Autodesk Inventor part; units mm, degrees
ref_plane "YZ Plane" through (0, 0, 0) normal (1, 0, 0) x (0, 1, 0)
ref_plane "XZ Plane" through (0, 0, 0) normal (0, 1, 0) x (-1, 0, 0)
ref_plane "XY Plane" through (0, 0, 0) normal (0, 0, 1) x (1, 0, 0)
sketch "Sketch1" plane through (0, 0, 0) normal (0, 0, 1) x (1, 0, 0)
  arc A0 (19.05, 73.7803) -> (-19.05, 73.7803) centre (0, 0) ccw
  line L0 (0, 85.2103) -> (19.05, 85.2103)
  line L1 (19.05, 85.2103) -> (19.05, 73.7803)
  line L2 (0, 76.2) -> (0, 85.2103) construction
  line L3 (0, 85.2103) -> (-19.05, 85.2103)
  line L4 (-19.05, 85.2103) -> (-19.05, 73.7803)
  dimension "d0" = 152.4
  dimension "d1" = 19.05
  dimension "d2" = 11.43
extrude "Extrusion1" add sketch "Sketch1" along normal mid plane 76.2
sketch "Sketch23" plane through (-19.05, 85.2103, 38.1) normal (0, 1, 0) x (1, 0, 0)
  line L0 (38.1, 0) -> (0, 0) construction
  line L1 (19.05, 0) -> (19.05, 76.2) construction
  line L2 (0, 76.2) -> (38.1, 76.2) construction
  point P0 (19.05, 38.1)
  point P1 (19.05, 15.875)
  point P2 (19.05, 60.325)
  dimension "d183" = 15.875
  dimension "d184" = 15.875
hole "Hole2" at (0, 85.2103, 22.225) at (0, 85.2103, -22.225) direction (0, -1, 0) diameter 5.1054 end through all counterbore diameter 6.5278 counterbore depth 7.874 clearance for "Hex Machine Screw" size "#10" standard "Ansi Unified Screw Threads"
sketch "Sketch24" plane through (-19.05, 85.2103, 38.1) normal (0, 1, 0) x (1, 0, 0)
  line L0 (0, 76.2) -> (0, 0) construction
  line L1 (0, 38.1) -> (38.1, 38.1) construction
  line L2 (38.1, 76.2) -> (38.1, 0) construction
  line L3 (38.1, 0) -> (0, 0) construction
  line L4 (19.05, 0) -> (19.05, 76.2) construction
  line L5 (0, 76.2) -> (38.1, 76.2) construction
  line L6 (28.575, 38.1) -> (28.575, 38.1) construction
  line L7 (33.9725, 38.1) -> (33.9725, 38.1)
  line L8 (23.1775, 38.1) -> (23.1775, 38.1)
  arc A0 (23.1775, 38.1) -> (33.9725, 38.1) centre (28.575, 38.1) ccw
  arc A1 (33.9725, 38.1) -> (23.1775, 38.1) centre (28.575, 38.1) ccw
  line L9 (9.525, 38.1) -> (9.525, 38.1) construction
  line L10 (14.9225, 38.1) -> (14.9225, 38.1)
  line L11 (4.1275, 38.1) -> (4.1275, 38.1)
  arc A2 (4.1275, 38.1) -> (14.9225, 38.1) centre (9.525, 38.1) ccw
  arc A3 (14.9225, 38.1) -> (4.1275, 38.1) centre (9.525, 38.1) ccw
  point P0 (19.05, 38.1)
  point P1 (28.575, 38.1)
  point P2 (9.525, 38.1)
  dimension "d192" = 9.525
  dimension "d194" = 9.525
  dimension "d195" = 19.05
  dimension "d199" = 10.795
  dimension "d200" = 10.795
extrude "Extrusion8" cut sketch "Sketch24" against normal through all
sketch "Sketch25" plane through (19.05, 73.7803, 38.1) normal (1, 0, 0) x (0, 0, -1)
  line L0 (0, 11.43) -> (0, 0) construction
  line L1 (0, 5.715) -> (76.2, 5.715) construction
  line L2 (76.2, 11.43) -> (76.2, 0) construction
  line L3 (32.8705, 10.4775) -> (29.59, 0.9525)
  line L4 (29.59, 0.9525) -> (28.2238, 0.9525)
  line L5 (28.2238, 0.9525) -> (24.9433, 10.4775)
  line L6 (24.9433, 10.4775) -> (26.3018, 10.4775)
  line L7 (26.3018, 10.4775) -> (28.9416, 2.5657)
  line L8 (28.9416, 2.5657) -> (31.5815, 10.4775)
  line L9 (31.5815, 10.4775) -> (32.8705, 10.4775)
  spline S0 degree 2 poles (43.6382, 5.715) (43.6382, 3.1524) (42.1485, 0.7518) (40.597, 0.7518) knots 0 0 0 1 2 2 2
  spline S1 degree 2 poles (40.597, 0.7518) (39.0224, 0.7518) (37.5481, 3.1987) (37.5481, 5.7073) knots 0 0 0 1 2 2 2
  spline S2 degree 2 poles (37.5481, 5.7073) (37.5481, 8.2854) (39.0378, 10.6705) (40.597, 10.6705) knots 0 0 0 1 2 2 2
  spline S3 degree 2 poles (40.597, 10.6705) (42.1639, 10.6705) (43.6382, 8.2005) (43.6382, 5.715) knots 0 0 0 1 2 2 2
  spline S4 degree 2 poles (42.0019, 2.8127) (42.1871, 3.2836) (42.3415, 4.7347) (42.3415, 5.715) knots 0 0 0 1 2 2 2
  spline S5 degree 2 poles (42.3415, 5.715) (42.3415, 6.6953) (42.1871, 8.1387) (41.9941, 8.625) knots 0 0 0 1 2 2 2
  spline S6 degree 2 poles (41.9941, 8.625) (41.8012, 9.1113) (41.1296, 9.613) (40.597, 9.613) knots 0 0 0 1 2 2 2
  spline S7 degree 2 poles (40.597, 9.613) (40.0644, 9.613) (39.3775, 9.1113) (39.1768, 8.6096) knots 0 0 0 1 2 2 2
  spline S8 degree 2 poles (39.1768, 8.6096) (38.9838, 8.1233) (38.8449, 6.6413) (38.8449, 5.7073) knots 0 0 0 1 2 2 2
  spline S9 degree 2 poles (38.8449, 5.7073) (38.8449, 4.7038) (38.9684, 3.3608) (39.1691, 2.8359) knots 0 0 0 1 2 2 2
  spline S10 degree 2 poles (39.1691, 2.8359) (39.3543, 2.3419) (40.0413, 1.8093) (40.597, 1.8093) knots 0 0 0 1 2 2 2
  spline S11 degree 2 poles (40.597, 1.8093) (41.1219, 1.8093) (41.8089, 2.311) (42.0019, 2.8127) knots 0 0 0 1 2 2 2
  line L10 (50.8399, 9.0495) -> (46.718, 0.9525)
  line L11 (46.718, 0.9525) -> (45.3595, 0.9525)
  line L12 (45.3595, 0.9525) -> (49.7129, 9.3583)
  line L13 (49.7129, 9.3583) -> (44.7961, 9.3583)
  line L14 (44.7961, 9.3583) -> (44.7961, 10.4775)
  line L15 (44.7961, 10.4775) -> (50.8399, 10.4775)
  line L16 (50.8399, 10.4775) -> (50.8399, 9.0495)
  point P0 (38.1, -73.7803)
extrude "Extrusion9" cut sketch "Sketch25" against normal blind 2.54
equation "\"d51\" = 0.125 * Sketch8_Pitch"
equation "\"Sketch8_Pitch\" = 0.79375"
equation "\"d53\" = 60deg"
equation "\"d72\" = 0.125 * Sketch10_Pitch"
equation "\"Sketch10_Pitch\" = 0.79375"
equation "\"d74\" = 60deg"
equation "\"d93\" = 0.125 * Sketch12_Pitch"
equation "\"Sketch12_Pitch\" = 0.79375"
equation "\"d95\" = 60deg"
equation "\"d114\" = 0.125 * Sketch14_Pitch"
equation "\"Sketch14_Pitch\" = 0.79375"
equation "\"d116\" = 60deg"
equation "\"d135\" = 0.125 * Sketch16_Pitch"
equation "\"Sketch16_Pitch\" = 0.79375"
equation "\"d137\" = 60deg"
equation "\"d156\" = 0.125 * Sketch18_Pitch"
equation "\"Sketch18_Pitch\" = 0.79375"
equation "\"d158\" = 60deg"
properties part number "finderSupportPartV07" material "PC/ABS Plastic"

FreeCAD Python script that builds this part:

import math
import FreeCAD as App
import Part
import Sketcher
Q = App.Units.Quantity

doc = App.newDocument("Part")
body = doc.addObject("PartDesign::Body", "Body")

# Sketch on XY plane
sketch1 = body.newObject("Sketcher::SketchObject", "Sketch")
sketch1.AttachmentSupport = (doc.getObject("XY_Plane"), [""])
sketch1.MapMode = "FlatFace"
sketch1.addGeometry([
    Part.ArcOfCircle(Part.Circle(App.Vector(0, 0, 0), App.Vector(0, 0, 1), 76), math.radians(76), math.radians(104)),
    Part.LineSegment(App.Vector(19, 74, 0), App.Vector(19, 85, 0)),
    Part.LineSegment(App.Vector(19, 85, 0), App.Vector(-19, 85, 0)),
    Part.LineSegment(App.Vector(-19, 85, 0), App.Vector(-19, 74, 0)),
], False)
sketch1.addConstraint([
    Sketcher.Constraint("Coincident", 0, 1, 1, 1),
    Sketcher.Constraint("Coincident", 1, 2, 2, 1),
    Sketcher.Constraint("Coincident", 2, 2, 3, 1),
    Sketcher.Constraint("Coincident", 3, 2, 0, 2),
    Sketcher.Constraint("Vertical", 1),
    Sketcher.Constraint("Horizontal", 2),
    Sketcher.Constraint("Vertical", 3),
    Sketcher.Constraint("Coincident", 0, 3, -1, 1),
    Sketcher.Constraint("Horizontal", 0, 1, 3, 2),
    Sketcher.Constraint("Radius", 0, Q("3 in")),
    Sketcher.Constraint("DistanceY", 1, 1, 1, 2, Q("0.45 in")),
    Sketcher.Constraint("DistanceX", -1, 1, 0, 1, Q("0.75 in")),
])
pad1 = body.newObject("PartDesign::Pad", "Pad")
pad1.Profile = sketch1
pad1.Length = Q("3 in")
pad1.Midplane = True

# Sketch on XZ plane
sketch2 = body.newObject("Sketcher::SketchObject", "Sketch001")
sketch2.AttachmentSupport = (doc.getObject("XZ_Plane"), [""])
sketch2.MapMode = "FlatFace"
sketch2.AttachmentOffset = App.Placement(App.Vector(0, 0, -85.2103), App.Rotation())
sketch2.addGeometry([
    Part.Circle(App.Vector(0, 22.2, 0), App.Vector(0, 0, 1), 2.6),
    Part.Circle(App.Vector(0, -22.2, 0), App.Vector(0, 0, 1), 2.6),
], False)
sketch2.addConstraint([
    Sketcher.Constraint("Equal", 0, 1),
    Sketcher.Constraint("Symmetric", 0, 3, 1, 3, -1, 1),
    Sketcher.Constraint("PointOnObject", 0, 3, -2),
    Sketcher.Constraint("Diameter", 0, Q("0.201 in")),
    Sketcher.Constraint("DistanceY", 1, 3, 0, 3, Q("1.75 in")),
])
doc.recompute()
hole = body.newObject("PartDesign::Hole", "Hole")
hole.Profile = sketch2
hole.ThreadType = "None"
hole.Diameter = Q("0.201 in")
hole.DepthType = "ThroughAll"
hole.HoleCutType = "Counterbore"
hole.HoleCutDiameter = Q("0.257 in")
hole.HoleCutDepth = Q("0.31 in")
hole.Reversed = True

# Sketch on XZ plane
sketch3 = body.newObject("Sketcher::SketchObject", "Sketch002")
sketch3.AttachmentSupport = (doc.getObject("XZ_Plane"), [""])
sketch3.MapMode = "FlatFace"
sketch3.AttachmentOffset = App.Placement(App.Vector(0, 0, -85.2103), App.Rotation())
sketch3.addGeometry([
    Part.Circle(App.Vector(10, 0, 0), App.Vector(0, 0, 1), 5),
    Part.Circle(App.Vector(-10, 0, 0), App.Vector(0, 0, 1), 5),
], False)
sketch3.addConstraint([
    Sketcher.Constraint("Equal", 0, 1),
    Sketcher.Constraint("Symmetric", 0, 3, 1, 3, -1, 1),
    Sketcher.Constraint("PointOnObject", 0, 3, -1),
    Sketcher.Constraint("Diameter", 0, Q("0.425 in")),
    Sketcher.Constraint("DistanceX", 1, 3, 0, 3, Q("0.75 in")),
])
pocket1 = body.newObject("PartDesign::Pocket", "Pocket")
pocket1.Profile = sketch3
pocket1.Type = "ThroughAll"
pocket1.Reversed = True

# Sketch on YZ plane
sketch4 = body.newObject("Sketcher::SketchObject", "Sketch003")
sketch4.AttachmentSupport = (doc.getObject("YZ_Plane"), [""])
sketch4.MapMode = "FlatFace"
sketch4.AttachmentOffset = App.Placement(App.Vector(0, 0, 0.75 * 25.4), App.Rotation())
sketch4.addGeometry([
    Part.LineSegment(App.Vector(74.7328, 8.51, 0), App.Vector(84.2578, 5.2295, 0)),  # 0
    Part.LineSegment(App.Vector(84.2578, 5.2295, 0), App.Vector(84.2578, 6.5185, 0)),  # 1
    Part.LineSegment(App.Vector(84.2578, 6.5185, 0), App.Vector(76.346, 9.1584, 0)),  # 2
    Part.LineSegment(App.Vector(76.346, 9.1584, 0), App.Vector(84.2578, 11.7982, 0)),  # 3
    Part.LineSegment(App.Vector(84.2578, 11.7982, 0), App.Vector(84.2578, 13.1567, 0)),  # 4
    Part.LineSegment(App.Vector(84.2578, 13.1567, 0), App.Vector(74.7328, 9.8762, 0)),  # 5
    Part.LineSegment(App.Vector(74.7328, 9.8762, 0), App.Vector(74.7328, 8.51, 0)),  # 6
    Part.BSplineCurve([App.Vector(79.4953, -5.5382, 0), App.Vector(76.9327, -5.5382, 0), App.Vector(74.5321, -4.0485, 0), App.Vector(74.5321, -2.497, 0)], [3, 1, 3], [0, 1, 2], False, 2, [1, 1, 1, 1], False),  # 7
    Part.BSplineCurve([App.Vector(84.4508, -2.497, 0), App.Vector(84.4508, -4.0639, 0), App.Vector(81.9808, -5.5382, 0), App.Vector(79.4953, -5.5382, 0)], [3, 1, 3], [0, 1, 2], False, 2, [1, 1, 1, 1], False),  # 8
    Part.BSplineCurve([App.Vector(79.4876, 0.5519, 0), App.Vector(82.0657, 0.5519, 0), App.Vector(84.4508, -0.9378, 0), App.Vector(84.4508, -2.497, 0)], [3, 1, 3], [0, 1, 2], False, 2, [1, 1, 1, 1], False),  # 9
    Part.BSplineCurve([App.Vector(74.5321, -2.497, 0), App.Vector(74.5321, -0.9224, 0), App.Vector(76.979, 0.5519, 0), App.Vector(79.4876, 0.5519, 0)], [3, 1, 3], [0, 1, 2], False, 2, [1, 1, 1, 1], False),  # 10
    Part.BSplineCurve([App.Vector(76.593, -3.9019, 0), App.Vector(77.0639, -4.0871, 0), App.Vector(78.515, -4.2415, 0), App.Vector(79.4953, -4.2415, 0)], [3, 1, 3], [0, 1, 2], False, 2, [1, 1, 1, 1], False),  # 11
    Part.BSplineCurve([App.Vector(75.5896, -2.497, 0), App.Vector(75.5896, -3.0219, 0), App.Vector(76.0913, -3.7089, 0), App.Vector(76.593, -3.9019, 0)], [3, 1, 3], [0, 1, 2], False, 2, [1, 1, 1, 1], False),  # 12
    Part.BSplineCurve([App.Vector(76.6162, -1.0691, 0), App.Vector(76.1222, -1.2543, 0), App.Vector(75.5896, -1.9413, 0), App.Vector(75.5896, -2.497, 0)], [3, 1, 3], [0, 1, 2], False, 2, [1, 1, 1, 1], False),  # 13
    Part.BSplineCurve([App.Vector(79.4876, -0.7449, 0), App.Vector(78.4841, -0.7449, 0), App.Vector(77.1411, -0.8684, 0), App.Vector(76.6162, -1.0691, 0)], [3, 1, 3], [0, 1, 2], False, 2, [1, 1, 1, 1], False),  # 14
    Part.BSplineCurve([App.Vector(82.3899, -1.0768, 0), App.Vector(81.9036, -0.8838, 0), App.Vector(80.4216, -0.7449, 0), App.Vector(79.4876, -0.7449, 0)], [3, 1, 3], [0, 1, 2], False, 2, [1, 1, 1, 1], False),  # 15
    Part.BSplineCurve([App.Vector(83.3933, -2.497, 0), App.Vector(83.3933, -1.9644, 0), App.Vector(82.8916, -1.2775, 0), App.Vector(82.3899, -1.0768, 0)], [3, 1, 3], [0, 1, 2], False, 2, [1, 1, 1, 1], False),  # 16
    Part.BSplineCurve([App.Vector(82.4053, -3.8941, 0), App.Vector(82.8916, -3.7012, 0), App.Vector(83.3933, -3.0296, 0), App.Vector(83.3933, -2.497, 0)], [3, 1, 3], [0, 1, 2], False, 2, [1, 1, 1, 1], False),  # 17
    Part.BSplineCurve([App.Vector(79.4953, -4.2415, 0), App.Vector(80.4756, -4.2415, 0), App.Vector(81.919, -4.0871, 0), App.Vector(82.4053, -3.8941, 0)], [3, 1, 3], [0, 1, 2], False, 2, [1, 1, 1, 1], False),  # 18
    Part.LineSegment(App.Vector(74.7328, -8.618, 0), App.Vector(82.8298, -12.7399, 0)),  # 19
    Part.LineSegment(App.Vector(82.8298, -12.7399, 0), App.Vector(84.2578, -12.7399, 0)),  # 20
    Part.LineSegment(App.Vector(84.2578, -12.7399, 0), App.Vector(84.2578, -6.6961, 0)),  # 21
    Part.LineSegment(App.Vector(84.2578, -6.6961, 0), App.Vector(83.1386, -6.6961, 0)),  # 22
    Part.LineSegment(App.Vector(83.1386, -6.6961, 0), App.Vector(83.1386, -11.6129, 0)),  # 23
    Part.LineSegment(App.Vector(83.1386, -11.6129, 0), App.Vector(74.7328, -7.2595, 0)),  # 24
    Part.LineSegment(App.Vector(74.7328, -7.2595, 0), App.Vector(74.7328, -8.618, 0)),  # 25
], False)
sketch4.addConstraint([
    Sketcher.Constraint("Block", 7),
    Sketcher.Constraint("Block", 8),
    Sketcher.Constraint("Block", 9),
    Sketcher.Constraint("Block", 10),
    Sketcher.Constraint("Block", 11),
    Sketcher.Constraint("Block", 12),
    Sketcher.Constraint("Block", 13),
    Sketcher.Constraint("Block", 14),
    Sketcher.Constraint("Block", 15),
    Sketcher.Constraint("Block", 16),
    Sketcher.Constraint("Block", 17),
    Sketcher.Constraint("Block", 18),
    Sketcher.Constraint("Coincident", 0, 2, 1, 1),
    Sketcher.Constraint("Coincident", 1, 2, 2, 1),
    Sketcher.Constraint("Coincident", 2, 2, 3, 1),
    Sketcher.Constraint("Coincident", 3, 2, 4, 1),
    Sketcher.Constraint("Coincident", 4, 2, 5, 1),
    Sketcher.Constraint("Coincident", 5, 2, 6, 1),
    Sketcher.Constraint("Coincident", 6, 2, 0, 1),
    Sketcher.Constraint("Coincident", 19, 2, 20, 1),
    Sketcher.Constraint("Coincident", 20, 2, 21, 1),
    Sketcher.Constraint("Coincident", 21, 2, 22, 1),
    Sketcher.Constraint("Coincident", 22, 2, 23, 1),
    Sketcher.Constraint("Coincident", 23, 2, 24, 1),
    Sketcher.Constraint("Coincident", 24, 2, 25, 1),
    Sketcher.Constraint("Coincident", 25, 2, 19, 1),
    Sketcher.Constraint("Vertical", 1),
    Sketcher.Constraint("Vertical", 4),
    Sketcher.Constraint("Vertical", 6),
    Sketcher.Constraint("Horizontal", 20),
    Sketcher.Constraint("Vertical", 21),
    Sketcher.Constraint("Horizontal", 22),
    Sketcher.Constraint("Vertical", 23),
    Sketcher.Constraint("Vertical", 25),
    Sketcher.Constraint("Vertical", 1, 2, 3, 2),
    Sketcher.Constraint("Vertical", 4, 2, 20, 2),
    Sketcher.Constraint("Vertical", 6, 2, 24, 2),
    Sketcher.Constraint("Equal", 4, 25),
    Sketcher.Constraint("Equal", 2, 3),
    Sketcher.Constraint("Equal", 0, 5),
    Sketcher.Constraint("Angle", 19, Q("-26.979 deg")),
    Sketcher.Constraint("Angle", 24, Q("152.6202 deg")),
    Sketcher.Constraint("DistanceX", 5, 2, 3, 2, Q("0.375 in")),
    Sketcher.Constraint("Distance", 19, Q("0.3577 in")),
    Sketcher.Constraint("DistanceX", 22, 2, 22, 1, 1.1192),
    Sketcher.Constraint("DistanceY", 1, 1, 1, 2, 1.289),
    Sketcher.Constraint("DistanceY", 4, 1, 4, 2, 1.3585),
    Sketcher.Constraint("DistanceY", 6, 2, 6, 1, 1.3662),
    Sketcher.Constraint("DistanceY", 21, 1, 21, 2, 6.0438),
    Sketcher.Constraint("DistanceY", -1, 1, 3, 2, Q("0.4645 in")),
    Sketcher.Constraint("DistanceY", 23, 2, -1, 1, Q("0.4572 in")),
    Sketcher.Constraint("DistanceX", 2, 2, 1, 2, Q("0.3115 in")),
    Sketcher.Constraint("DistanceY", 0, 2, 3, 2, Q("0.2586 in")),
    Sketcher.Constraint("DistanceX", -1, 1, 0, 2, 84.2578),
])
pocket2 = body.newObject("PartDesign::Pocket", "Pocket001")
pocket2.Profile = sketch4
pocket2.Length = Q("0.1 in")

doc.recompute()
